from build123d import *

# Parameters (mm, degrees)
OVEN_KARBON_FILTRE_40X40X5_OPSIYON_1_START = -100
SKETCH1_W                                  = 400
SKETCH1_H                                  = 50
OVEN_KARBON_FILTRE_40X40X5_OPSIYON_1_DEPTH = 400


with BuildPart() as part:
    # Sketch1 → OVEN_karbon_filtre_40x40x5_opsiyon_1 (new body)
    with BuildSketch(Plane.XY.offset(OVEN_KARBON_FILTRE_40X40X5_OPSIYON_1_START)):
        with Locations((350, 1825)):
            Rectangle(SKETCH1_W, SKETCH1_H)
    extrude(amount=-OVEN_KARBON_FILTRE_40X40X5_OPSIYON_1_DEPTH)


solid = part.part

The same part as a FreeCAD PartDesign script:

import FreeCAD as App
import Part
import Sketcher
from FreeCAD import Vector

doc = App.newDocument("Part")
body = doc.addObject("PartDesign::Body", "Body")

# Sketch on XY plane
sketch1 = body.newObject("Sketcher::SketchObject", "Sketch")
sketch1.AttachmentSupport = (doc.getObject("XY_Plane"), [""])
sketch1.MapMode = "FlatFace"
sketch1.AttachmentOffset = App.Placement(Vector(0, 0, -100), App.Rotation())
sketch1.addGeometry(Part.LineSegment(Vector(150, 1850, 0), Vector(150, 1800, 0)), False)
sketch1.addGeometry(Part.LineSegment(Vector(150, 1800, 0), Vector(550, 1800, 0)), False)
sketch1.addGeometry(Part.LineSegment(Vector(550, 1800, 0), Vector(550, 1850, 0)), False)
sketch1.addGeometry(Part.LineSegment(Vector(550, 1850, 0), Vector(150, 1850, 0)), False)
sketch1.addConstraint(Sketcher.Constraint("Coincident", 0, 2, 1, 1))
sketch1.addConstraint(Sketcher.Constraint("Coincident", 1, 2, 2, 1))
sketch1.addConstraint(Sketcher.Constraint("Coincident", 2, 2, 3, 1))
sketch1.addConstraint(Sketcher.Constraint("Coincident", 3, 2, 0, 1))
sketch1.addConstraint(Sketcher.Constraint("Vertical", 0))
sketch1.addConstraint(Sketcher.Constraint("Horizontal", 1))
sketch1.addConstraint(Sketcher.Constraint("Vertical", 2))
sketch1.addConstraint(Sketcher.Constraint("Horizontal", 3))
sketch1.addConstraint(Sketcher.Constraint("DistanceX", 1, 1, 1, 2, 400.0))
sketch1.addConstraint(Sketcher.Constraint("DistanceY", 0, 2, 0, 1, 50.0))
sketch1.addConstraint(Sketcher.Constraint("DistanceX", -1, 1, 0, 2, 150.0))
sketch1.addConstraint(Sketcher.Constraint("DistanceY", -1, 1, 0, 2, 1800.0))
pad1 = body.newObject("PartDesign::Pad", "Pad")
pad1.Profile = sketch1
pad1.Length = 400
pad1.Reversed = True

doc.recompute()
